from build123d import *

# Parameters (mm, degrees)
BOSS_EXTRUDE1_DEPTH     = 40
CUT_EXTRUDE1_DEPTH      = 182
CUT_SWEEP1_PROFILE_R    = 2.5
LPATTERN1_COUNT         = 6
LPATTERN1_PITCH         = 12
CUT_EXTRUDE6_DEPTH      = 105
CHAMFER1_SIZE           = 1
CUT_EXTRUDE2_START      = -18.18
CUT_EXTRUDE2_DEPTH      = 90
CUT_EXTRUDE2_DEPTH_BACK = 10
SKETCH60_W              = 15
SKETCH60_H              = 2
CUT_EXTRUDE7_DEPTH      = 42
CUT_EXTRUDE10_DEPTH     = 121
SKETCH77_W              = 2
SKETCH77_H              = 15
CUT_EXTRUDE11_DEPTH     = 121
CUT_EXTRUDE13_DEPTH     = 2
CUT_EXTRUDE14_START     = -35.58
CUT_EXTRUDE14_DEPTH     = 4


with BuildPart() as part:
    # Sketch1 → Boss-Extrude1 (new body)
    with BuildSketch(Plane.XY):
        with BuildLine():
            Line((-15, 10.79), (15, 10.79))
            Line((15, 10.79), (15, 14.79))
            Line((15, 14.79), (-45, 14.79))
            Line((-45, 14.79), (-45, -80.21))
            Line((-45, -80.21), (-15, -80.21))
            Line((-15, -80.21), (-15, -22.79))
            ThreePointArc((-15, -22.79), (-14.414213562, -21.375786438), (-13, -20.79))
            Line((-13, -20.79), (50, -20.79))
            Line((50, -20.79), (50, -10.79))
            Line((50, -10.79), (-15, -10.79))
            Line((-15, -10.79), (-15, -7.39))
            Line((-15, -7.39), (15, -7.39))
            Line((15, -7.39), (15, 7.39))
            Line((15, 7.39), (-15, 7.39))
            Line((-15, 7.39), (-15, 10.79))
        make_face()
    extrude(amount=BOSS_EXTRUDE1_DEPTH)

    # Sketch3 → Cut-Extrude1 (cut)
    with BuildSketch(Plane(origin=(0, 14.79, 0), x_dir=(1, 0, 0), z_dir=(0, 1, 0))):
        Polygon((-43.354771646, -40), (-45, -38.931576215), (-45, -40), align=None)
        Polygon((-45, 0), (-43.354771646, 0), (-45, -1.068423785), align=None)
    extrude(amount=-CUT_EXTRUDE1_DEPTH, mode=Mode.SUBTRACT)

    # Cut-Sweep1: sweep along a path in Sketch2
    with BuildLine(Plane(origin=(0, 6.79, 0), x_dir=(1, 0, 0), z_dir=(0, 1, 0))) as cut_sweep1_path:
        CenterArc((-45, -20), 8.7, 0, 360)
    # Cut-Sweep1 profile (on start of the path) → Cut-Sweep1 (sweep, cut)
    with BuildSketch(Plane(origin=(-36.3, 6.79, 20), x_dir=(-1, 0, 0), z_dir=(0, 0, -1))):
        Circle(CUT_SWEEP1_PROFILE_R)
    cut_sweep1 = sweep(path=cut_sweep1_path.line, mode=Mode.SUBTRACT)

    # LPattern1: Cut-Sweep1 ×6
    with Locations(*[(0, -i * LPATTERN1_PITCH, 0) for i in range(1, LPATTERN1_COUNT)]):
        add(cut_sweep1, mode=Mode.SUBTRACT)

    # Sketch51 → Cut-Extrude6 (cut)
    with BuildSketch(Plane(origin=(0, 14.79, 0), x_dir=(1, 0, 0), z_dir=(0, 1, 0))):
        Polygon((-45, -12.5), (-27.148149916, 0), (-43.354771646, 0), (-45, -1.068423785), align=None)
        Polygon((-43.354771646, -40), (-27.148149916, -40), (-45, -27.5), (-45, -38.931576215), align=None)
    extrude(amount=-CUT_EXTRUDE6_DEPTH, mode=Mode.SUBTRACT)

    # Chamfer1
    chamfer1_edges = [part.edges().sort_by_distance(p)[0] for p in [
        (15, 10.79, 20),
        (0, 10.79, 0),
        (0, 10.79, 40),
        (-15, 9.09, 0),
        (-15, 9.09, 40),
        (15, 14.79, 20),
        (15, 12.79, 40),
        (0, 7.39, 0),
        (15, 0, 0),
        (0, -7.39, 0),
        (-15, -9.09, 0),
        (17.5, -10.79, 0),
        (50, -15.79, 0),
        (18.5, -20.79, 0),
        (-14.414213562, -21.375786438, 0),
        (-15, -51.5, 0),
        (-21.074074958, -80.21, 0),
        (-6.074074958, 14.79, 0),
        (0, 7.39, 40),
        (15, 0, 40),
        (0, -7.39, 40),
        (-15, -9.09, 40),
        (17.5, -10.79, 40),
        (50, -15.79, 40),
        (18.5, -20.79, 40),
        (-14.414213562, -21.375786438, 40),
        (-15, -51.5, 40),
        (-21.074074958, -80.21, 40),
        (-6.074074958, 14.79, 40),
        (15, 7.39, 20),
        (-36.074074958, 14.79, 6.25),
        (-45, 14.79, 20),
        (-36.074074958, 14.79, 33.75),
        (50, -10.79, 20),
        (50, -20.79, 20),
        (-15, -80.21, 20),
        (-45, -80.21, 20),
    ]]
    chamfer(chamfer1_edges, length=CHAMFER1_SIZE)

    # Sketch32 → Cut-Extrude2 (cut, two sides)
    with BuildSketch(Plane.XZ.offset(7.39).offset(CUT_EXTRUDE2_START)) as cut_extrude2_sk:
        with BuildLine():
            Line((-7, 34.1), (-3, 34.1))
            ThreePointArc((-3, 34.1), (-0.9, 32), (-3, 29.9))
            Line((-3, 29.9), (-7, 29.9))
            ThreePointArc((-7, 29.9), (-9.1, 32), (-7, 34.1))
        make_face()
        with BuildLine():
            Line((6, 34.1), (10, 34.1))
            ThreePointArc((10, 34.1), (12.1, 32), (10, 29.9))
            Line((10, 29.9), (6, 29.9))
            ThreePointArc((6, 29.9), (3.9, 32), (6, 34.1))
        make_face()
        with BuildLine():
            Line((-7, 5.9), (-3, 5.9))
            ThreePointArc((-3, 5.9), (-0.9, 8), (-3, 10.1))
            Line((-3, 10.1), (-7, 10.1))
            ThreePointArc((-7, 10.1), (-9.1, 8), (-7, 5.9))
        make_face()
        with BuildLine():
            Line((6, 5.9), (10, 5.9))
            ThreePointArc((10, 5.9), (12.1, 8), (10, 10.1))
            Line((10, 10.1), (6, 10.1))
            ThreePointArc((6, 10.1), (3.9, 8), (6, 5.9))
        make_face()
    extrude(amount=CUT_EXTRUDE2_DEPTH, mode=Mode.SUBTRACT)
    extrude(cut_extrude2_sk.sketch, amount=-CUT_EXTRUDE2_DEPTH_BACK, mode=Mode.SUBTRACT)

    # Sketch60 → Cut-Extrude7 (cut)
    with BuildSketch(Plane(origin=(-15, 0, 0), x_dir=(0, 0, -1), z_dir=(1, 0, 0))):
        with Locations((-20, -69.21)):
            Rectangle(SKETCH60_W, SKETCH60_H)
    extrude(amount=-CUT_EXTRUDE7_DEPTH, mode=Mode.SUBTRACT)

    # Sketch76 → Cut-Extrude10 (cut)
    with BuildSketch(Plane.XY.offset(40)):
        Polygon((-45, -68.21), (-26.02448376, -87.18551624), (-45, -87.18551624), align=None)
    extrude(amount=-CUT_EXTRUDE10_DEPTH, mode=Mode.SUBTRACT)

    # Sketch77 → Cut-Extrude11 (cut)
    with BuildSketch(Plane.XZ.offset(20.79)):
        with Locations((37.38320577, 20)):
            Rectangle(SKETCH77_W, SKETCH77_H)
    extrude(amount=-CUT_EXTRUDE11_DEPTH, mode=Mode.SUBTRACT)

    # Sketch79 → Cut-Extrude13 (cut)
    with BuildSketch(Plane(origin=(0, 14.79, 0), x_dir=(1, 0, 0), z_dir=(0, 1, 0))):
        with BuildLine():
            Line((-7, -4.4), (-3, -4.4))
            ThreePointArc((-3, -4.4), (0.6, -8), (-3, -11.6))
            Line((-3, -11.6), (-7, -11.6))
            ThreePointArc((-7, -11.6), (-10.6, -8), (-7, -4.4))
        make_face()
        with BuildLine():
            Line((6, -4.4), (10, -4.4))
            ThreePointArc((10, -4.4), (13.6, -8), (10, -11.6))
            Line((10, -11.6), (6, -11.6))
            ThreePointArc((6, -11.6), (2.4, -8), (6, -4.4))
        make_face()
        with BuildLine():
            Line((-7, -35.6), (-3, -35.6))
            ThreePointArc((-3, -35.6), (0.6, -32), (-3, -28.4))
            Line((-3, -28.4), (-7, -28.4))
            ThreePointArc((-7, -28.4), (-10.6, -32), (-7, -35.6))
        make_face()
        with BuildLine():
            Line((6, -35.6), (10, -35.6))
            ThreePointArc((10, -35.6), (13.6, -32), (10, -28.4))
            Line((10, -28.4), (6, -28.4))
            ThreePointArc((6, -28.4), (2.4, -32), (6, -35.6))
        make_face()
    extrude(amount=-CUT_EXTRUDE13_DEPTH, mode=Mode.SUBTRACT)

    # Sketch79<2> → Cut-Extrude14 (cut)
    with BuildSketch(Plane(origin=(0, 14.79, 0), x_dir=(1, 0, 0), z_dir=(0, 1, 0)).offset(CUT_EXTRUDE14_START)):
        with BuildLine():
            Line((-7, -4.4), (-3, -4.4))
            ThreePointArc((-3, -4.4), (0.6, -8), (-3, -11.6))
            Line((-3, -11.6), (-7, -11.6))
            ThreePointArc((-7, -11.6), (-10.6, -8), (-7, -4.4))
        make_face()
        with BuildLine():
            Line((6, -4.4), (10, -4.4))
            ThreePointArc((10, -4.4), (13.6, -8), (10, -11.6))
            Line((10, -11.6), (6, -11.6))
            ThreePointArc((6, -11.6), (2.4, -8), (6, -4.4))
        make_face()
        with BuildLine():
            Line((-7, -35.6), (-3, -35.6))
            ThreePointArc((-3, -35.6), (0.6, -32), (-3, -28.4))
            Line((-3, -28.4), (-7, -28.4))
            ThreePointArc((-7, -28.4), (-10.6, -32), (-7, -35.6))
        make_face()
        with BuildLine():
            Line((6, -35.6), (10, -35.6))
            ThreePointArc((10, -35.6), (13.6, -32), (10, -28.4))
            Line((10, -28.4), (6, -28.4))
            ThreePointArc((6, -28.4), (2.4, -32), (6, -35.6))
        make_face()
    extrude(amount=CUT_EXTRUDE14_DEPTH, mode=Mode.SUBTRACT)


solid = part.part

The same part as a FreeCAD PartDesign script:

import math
import FreeCAD as App
import Part
import Sketcher

V = App.Vector
Q = App.Units.Quantity


def edges_at(feature, points):
    """Names of the edges that pass closest to the given points."""
    edges = feature.Shape.Edges
    near = lambda p: min(range(len(edges)), key=lambda i: edges[i].distToShape(Part.Vertex(*p))[0])
    return sorted({f"Edge{near(p) + 1}" for p in points})


def add_polygon(sketch, points):
    """Adds a closed chain of lines whose ends are joined by coincident constraints."""
    first, n = sketch.GeometryCount, len(points)
    for a, b in zip(points, points[1:] + points[:1]):
        sketch.addGeometry(Part.LineSegment(App.Vector(*a, 0), App.Vector(*b, 0)), False)
    for i in range(n):
        sketch.addConstraint(Sketcher.Constraint("Coincident", first + i, 2, first + (i + 1) % n, 1))

doc = App.newDocument("Part")
body = doc.addObject("PartDesign::Body", "Body")

# Sketch on XY plane
sketch1 = doc.addObject("Sketcher::SketchObject", "Sketch")
body.addObject(sketch1)
sketch1.AttachmentSupport = (doc.XY_Plane, [""])
sketch1.MapMode = "FlatFace"
sketch1.addGeometry([
    Part.LineSegment(V(-15, 10.8, 0), V(15, 10.8, 0)),  # 0
    Part.LineSegment(V(15, 10.8, 0), V(15, 14.8, 0)),  # 1
    Part.LineSegment(V(15, 14.8, 0), V(-45, 14.8, 0)),  # 2
    Part.LineSegment(V(-45, 14.8, 0), V(-45, -80.2, 0)),  # 3
    Part.LineSegment(V(-45, -80.2, 0), V(-15, -80.2, 0)),  # 4
    Part.LineSegment(V(-15, -80.2, 0), V(-15, -22.8, 0)),  # 5
    Part.ArcOfCircle(Part.Circle(V(-13, -22.8, 0), V(0, 0, 1), 2), math.radians(90), math.radians(180)),  # 6
    Part.LineSegment(V(-13, -20.8, 0), V(50, -20.8, 0)),  # 7
    Part.LineSegment(V(50, -20.8, 0), V(50, -10.8, 0)),  # 8
    Part.LineSegment(V(50, -10.8, 0), V(-15, -10.8, 0)),  # 9
    Part.LineSegment(V(-15, -10.8, 0), V(-15, -7.4, 0)),  # 10
    Part.LineSegment(V(-15, -7.4, 0), V(15, -7.4, 0)),  # 11
    Part.LineSegment(V(15, -7.4, 0), V(15, 7.4, 0)),  # 12
    Part.LineSegment(V(15, 7.4, 0), V(-15, 7.4, 0)),  # 13
    Part.LineSegment(V(-15, 7.4, 0), V(-15, 10.8, 0)),  # 14
], False)
sketch1.addConstraint([
    Sketcher.Constraint("Coincident", 0, 2, 1, 1),
    Sketcher.Constraint("Coincident", 1, 2, 2, 1),
    Sketcher.Constraint("Coincident", 2, 2, 3, 1),
    Sketcher.Constraint("Coincident", 3, 2, 4, 1),
    Sketcher.Constraint("Coincident", 4, 2, 5, 1),
    Sketcher.Constraint("Tangent", 5, 2, 6, 2),
    Sketcher.Constraint("Tangent", 6, 1, 7, 1),
    Sketcher.Constraint("Coincident", 7, 2, 8, 1),
    Sketcher.Constraint("Coincident", 8, 2, 9, 1),
    Sketcher.Constraint("Coincident", 9, 2, 10, 1),
    Sketcher.Constraint("Coincident", 10, 2, 11, 1),
    Sketcher.Constraint("Coincident", 11, 2, 12, 1),
    Sketcher.Constraint("Coincident", 12, 2, 13, 1),
    Sketcher.Constraint("Coincident", 13, 2, 14, 1),
    Sketcher.Constraint("Coincident", 14, 2, 0, 1),
    Sketcher.Constraint("Horizontal", 0),
    Sketcher.Constraint("Vertical", 1),
    Sketcher.Constraint("Horizontal", 2),
    Sketcher.Constraint("Vertical", 3),
    Sketcher.Constraint("Horizontal", 4),
    Sketcher.Constraint("Vertical", 5),
    Sketcher.Constraint("Horizontal", 7),
    Sketcher.Constraint("Vertical", 8),
    Sketcher.Constraint("Horizontal", 9),
    Sketcher.Constraint("Vertical", 10),
    Sketcher.Constraint("Horizontal", 11),
    Sketcher.Constraint("Vertical", 12),
    Sketcher.Constraint("Horizontal", 13),
    Sketcher.Constraint("Vertical", 14),
    Sketcher.Constraint("Symmetric", 0, 2, 9, 2, -1, 1),
    Sketcher.Constraint("Symmetric", 10, 2, 12, 2, -1, 1),
    Sketcher.Constraint("Vertical", 5, 2, 9, 2),
    Sketcher.Constraint("Vertical", 10, 2, 13, 2),
    Sketcher.Constraint("Equal", 0, 4),
    Sketcher.Constraint("Radius", 6, 2.0),
    Sketcher.Constraint("DistanceX", 0, 1, 0, 2, 30.0),
    Sketcher.Constraint("DistanceX", 7, 1, 7, 2, 63.0),
    Sketcher.Constraint("DistanceY", 1, 1, 1, 2, 4.0),
    Sketcher.Constraint("DistanceY", 3, 2, 3, 1, 95.0),
    Sketcher.Constraint("DistanceY", 8, 1, 8, 2, 10.0),
    Sketcher.Constraint("DistanceY", 10, 1, 10, 2, 3.4),
    Sketcher.Constraint("DistanceY", 5, 1, 5, 2, 57.42),
])
pad1 = doc.addObject("PartDesign::Pad", "Pad")
body.addObject(pad1)
pad1.Profile = sketch1
pad1.Length = 40

# Sketch on XZ plane
sketch2 = doc.addObject("Sketcher::SketchObject", "Sketch001")
body.addObject(sketch2)
sketch2.AttachmentSupport = (doc.XZ_Plane, [""])
sketch2.MapMode = "FlatFace"
sketch2.AttachmentOffset = App.Placement(V(0, 0, -14.79), App.Rotation())
add_polygon(sketch2, [(-43.4, 40), (-45, 38.9), (-45, 40)])  # lines 0-2
add_polygon(sketch2, [(-43.4, 0), (-45, 0), (-45, 1.1)])  # lines 3-5
sketch2.addConstraint([
    Sketcher.Constraint("Vertical", 1),
    Sketcher.Constraint("Horizontal", 2),
    Sketcher.Constraint("Horizontal", 3),
    Sketcher.Constraint("Vertical", 4),
    Sketcher.Constraint("PointOnObject", 3, 2, -1),
    Sketcher.Constraint("Vertical", 1, 2, 3, 2),
    Sketcher.Constraint("Vertical", 2, 2, 5, 2),
    Sketcher.Constraint("Equal", 1, 4),
    Sketcher.Constraint("Angle", 0, Q("-147 deg")),
    Sketcher.Constraint("DistanceX", 0, 2, -1, 1, 45.0),
    Sketcher.Constraint("DistanceY", -1, 1, 1, 2, 40.0),
    Sketcher.Constraint("DistanceX", 2, 1, 2, 2, 1.645228),
])
pocket1 = doc.addObject("PartDesign::Pocket", "Pocket")
body.addObject(pocket1)
pocket1.Profile = sketch2
pocket1.Length = 182
pocket1.Reversed = True

# Sketch on XY plane
sketch3 = doc.addObject("Sketcher::SketchObject", "Sketch002")
body.addObject(sketch3)
sketch3.AttachmentSupport = (doc.XY_Plane, [""])
sketch3.MapMode = "FlatFace"
sketch3.AttachmentOffset = App.Placement(V(0, 0, 20), App.Rotation())
sketch3.addGeometry(Part.Circle(V(-36.3, 6.8, 0), V(0, 0, 1), 2.5), False)
sketch3.addConstraint([
    Sketcher.Constraint("Diameter", 0, 5.0),
    Sketcher.Constraint("DistanceX", 0, 3, -1, 1, 36.3),
    Sketcher.Constraint("DistanceY", -1, 1, 0, 3, 6.79),
])

# Sketch on XZ plane
sketch4 = doc.addObject("Sketcher::SketchObject", "Sketch003")
body.addObject(sketch4)
sketch4.AttachmentSupport = (doc.XZ_Plane, [""])
sketch4.MapMode = "FlatFace"
sketch4.AttachmentOffset = App.Placement(V(0, 0, -6.79), App.Rotation())
sketch4.addGeometry(Part.Circle(V(-45, 20, 0), V(0, 0, 1), 9), False)
sketch4.addConstraint([
    Sketcher.Constraint("Diameter", 0, 17.4),
    Sketcher.Constraint("DistanceX", 0, 3, -1, 1, 45.0),
    Sketcher.Constraint("DistanceY", -1, 1, 0, 3, 20.0),
])
doc.recompute()

subtractivepipe = doc.addObject("PartDesign::SubtractivePipe", "SubtractivePipe")
body.addObject(subtractivepipe)
subtractivepipe.Profile = sketch3
subtractivepipe.Spine = (sketch4, ["Edge1"])
doc.recompute()

linearpattern = doc.addObject("PartDesign::LinearPattern", "LinearPattern")
body.addObject(linearpattern)
linearpattern.Originals = [subtractivepipe]
linearpattern.Direction = (doc.Y_Axis, [""])
linearpattern.Mode = "offset"
linearpattern.Offset = 12
linearpattern.Occurrences = 6
linearpattern.Reversed = True
body.Tip = linearpattern

# Sketch on XZ plane
sketch5 = doc.addObject("Sketcher::SketchObject", "Sketch004")
body.addObject(sketch5)
sketch5.AttachmentSupport = (doc.XZ_Plane, [""])
sketch5.MapMode = "FlatFace"
sketch5.AttachmentOffset = App.Placement(V(0, 0, -14.79), App.Rotation())
add_polygon(sketch5, [(-45, 12.5), (-27.1, 0), (-43.4, 0), (-45, 1.1)])  # lines 0-3
add_polygon(sketch5, [(-43.4, 40), (-27.1, 40), (-45, 27.5), (-45, 38.9)])  # lines 4-7
sketch5.addConstraint([
    Sketcher.Constraint("Horizontal", 1),
    Sketcher.Constraint("Vertical", 3),
    Sketcher.Constraint("Horizontal", 4),
    Sketcher.Constraint("Vertical", 6),
    Sketcher.Constraint("PointOnObject", 0, 2, -1),
    Sketcher.Constraint("Vertical", 0, 2, 4, 2),
    Sketcher.Constraint("Vertical", 3, 2, 5, 2),
    Sketcher.Constraint("Vertical", 1, 2, 7, 2),
    Sketcher.Constraint("Equal", 3, 6),
    Sketcher.Constraint("Equal", 0, 5),
    Sketcher.Constraint("Angle", 0, Q("-35 deg")),
    Sketcher.Constraint("Angle", 2, Q("147 deg")),
    Sketcher.Constraint("DistanceX", 2, 2, -1, 1, 45.0),
    Sketcher.Constraint("DistanceY", -1, 1, 4, 2, 40.0),
    Sketcher.Constraint("DistanceY", 3, 2, 5, 2, 15.0),
    Sketcher.Constraint("DistanceX", 1, 2, 1, 1, 16.206622),
])
pocket2 = doc.addObject("PartDesign::Pocket", "Pocket001")
body.addObject(pocket2)
pocket2.Profile = sketch5
pocket2.Length = 105
pocket2.Reversed = True
doc.recompute()

chamfer = doc.addObject("PartDesign::Chamfer", "Chamfer")
body.addObject(chamfer)
chamfer.Base = (pocket2, edges_at(pocket2, [
    (15, 10.79, 20),
    (0, 10.79, 0),
    (0, 10.79, 40),
    (-15, 9.09, 0),
    (-15, 9.09, 40),
    (15, 14.79, 20),
    (15, 12.79, 40),
    (0, 7.39, 0),
    (15, 0, 0),
    (0, -7.39, 0),
    (-15, -9.09, 0),
    (17.5, -10.79, 0),
    (50, -15.79, 0),
    (18.5, -20.79, 0),
    (-14.414, -21.376, 0),
    (-15, -51.5, 0),
    (-21.074, -80.21, 0),
    (-6.074, 14.79, 0),
    (0, 7.39, 40),
    (15, 0, 40),
    (0, -7.39, 40),
    (-15, -9.09, 40),
    (17.5, -10.79, 40),
    (50, -15.79, 40),
    (18.5, -20.79, 40),
    (-14.414, -21.376, 40),
    (-15, -51.5, 40),
    (-21.074, -80.21, 40),
    (-6.074, 14.79, 40),
    (15, 7.39, 20),
    (-36.074, 14.79, 6.25),
    (-45, 14.79, 20),
    (-36.074, 14.79, 33.75),
    (50, -10.79, 20),
    (50, -20.79, 20),
    (-15, -80.21, 20),
    (-45, -80.21, 20),
]))
chamfer.Size = 1

# Sketch on XZ plane
sketch6 = doc.addObject("Sketcher::SketchObject", "Sketch005")
body.addObject(sketch6)
sketch6.AttachmentSupport = (doc.XZ_Plane, [""])
sketch6.MapMode = "FlatFace"
sketch6.AttachmentOffset = App.Placement(V(0, 0, -10.79), App.Rotation())
sketch6.addGeometry([
    Part.LineSegment(V(-3, 34.1, 0), V(-7, 34.1, 0)),  # 0
    Part.ArcOfCircle(Part.Circle(V(-7, 32, 0), V(0, 0, 1), 2.1), math.radians(90), math.radians(270)),  # 1
    Part.LineSegment(V(-7, 29.9, 0), V(-3, 29.9, 0)),  # 2
    Part.ArcOfCircle(Part.Circle(V(-3, 32, 0), V(0, 0, 1), 2.1), math.radians(-90), math.radians(90)),  # 3
    Part.LineSegment(V(10, 34.1, 0), V(6, 34.1, 0)),  # 4
    Part.ArcOfCircle(Part.Circle(V(6, 32, 0), V(0, 0, 1), 2.1), math.radians(90), math.radians(270)),  # 5
    Part.LineSegment(V(6, 29.9, 0), V(10, 29.9, 0)),  # 6
    Part.ArcOfCircle(Part.Circle(V(10, 32, 0), V(0, 0, 1), 2.1), math.radians(-90), math.radians(90)),  # 7
    Part.LineSegment(V(-7, 5.9, 0), V(-3, 5.9, 0)),  # 8
    Part.ArcOfCircle(Part.Circle(V(-3, 8, 0), V(0, 0, 1), 2.1), math.radians(-90), math.radians(90)),  # 9
    Part.LineSegment(V(-3, 10.1, 0), V(-7, 10.1, 0)),  # 10
    Part.ArcOfCircle(Part.Circle(V(-7, 8, 0), V(0, 0, 1), 2.1), math.radians(90), math.radians(270)),  # 11
    Part.LineSegment(V(6, 5.9, 0), V(10, 5.9, 0)),  # 12
    Part.ArcOfCircle(Part.Circle(V(10, 8, 0), V(0, 0, 1), 2.1), math.radians(-90), math.radians(90)),  # 13
    Part.LineSegment(V(10, 10.1, 0), V(6, 10.1, 0)),  # 14
    Part.ArcOfCircle(Part.Circle(V(6, 8, 0), V(0, 0, 1), 2.1), math.radians(90), math.radians(270)),  # 15
], False)
sketch6.addConstraint([
    Sketcher.Constraint("Tangent", 0, 2, 1, 1),
    Sketcher.Constraint("Tangent", 1, 2, 2, 1),
    Sketcher.Constraint("Tangent", 2, 2, 3, 1),
    Sketcher.Constraint("Tangent", 3, 2, 0, 1),
    Sketcher.Constraint("Tangent", 4, 2, 5, 1),
    Sketcher.Constraint("Tangent", 5, 2, 6, 1),
    Sketcher.Constraint("Tangent", 6, 2, 7, 1),
    Sketcher.Constraint("Tangent", 7, 2, 4, 1),
    Sketcher.Constraint("Tangent", 8, 2, 9, 1),
    Sketcher.Constraint("Tangent", 9, 2, 10, 1),
    Sketcher.Constraint("Tangent", 10, 2, 11, 1),
    Sketcher.Constraint("Tangent", 11, 2, 8, 1),
    Sketcher.Constraint("Tangent", 12, 2, 13, 1),
    Sketcher.Constraint("Tangent", 13, 2, 14, 1),
    Sketcher.Constraint("Tangent", 14, 2, 15, 1),
    Sketcher.Constraint("Tangent", 15, 2, 12, 1),
    Sketcher.Constraint("Horizontal", 0),
    Sketcher.Constraint("Horizontal", 2),
    Sketcher.Constraint("Horizontal", 4),
    Sketcher.Constraint("Horizontal", 6),
    Sketcher.Constraint("Horizontal", 8),
    Sketcher.Constraint("Horizontal", 10),
    Sketcher.Constraint("Horizontal", 12),
    Sketcher.Constraint("Horizontal", 14),
    Sketcher.Constraint("Equal", 3, 5),
    Sketcher.Constraint("Equal", 7, 9),
    Sketcher.Constraint("Equal", 11, 13),
    Sketcher.Constraint("Horizontal", 3, 3, 5, 3),
    Sketcher.Constraint("Horizontal", 11, 3, 13, 3),
    Sketcher.Constraint("Vertical", 3, 3, 9, 3),
    Sketcher.Constraint("Vertical", 1, 3, 11, 3),
    Sketcher.Constraint("Vertical", 7, 3, 13, 3),
    Sketcher.Constraint("Vertical", 5, 3, 15, 3),
    Sketcher.Constraint("Equal", 2, 4),
    Sketcher.Constraint("Radius", 1, 2.1),
    Sketcher.Constraint("DistanceX", 0, 2, 0, 1, 4.0),
    Sketcher.Constraint("DistanceX", 1, 3, -1, 1, 7.0),
    Sketcher.Constraint("DistanceY", -1, 1, 1, 3, 32.0),
    Sketcher.Constraint("DistanceX", -1, 1, 5, 3, 6.0),
    Sketcher.Constraint("DistanceY", -1, 1, 9, 3, 8.0),
])
pocket3 = doc.addObject("PartDesign::Pocket", "Pocket002")
body.addObject(pocket3)
pocket3.Profile = sketch6
pocket3.Type = "ThroughAll"
pocket3.Midplane = True

# Sketch on YZ plane
sketch7 = doc.addObject("Sketcher::SketchObject", "Sketch006")
body.addObject(sketch7)
sketch7.AttachmentSupport = (doc.YZ_Plane, [""])
sketch7.MapMode = "FlatFace"
sketch7.AttachmentOffset = App.Placement(V(0, 0, -15), App.Rotation())
add_polygon(sketch7, [(-68.2, 27.5), (-70.2, 27.5), (-70.2, 12.5), (-68.2, 12.5)])  # lines 0-3
sketch7.addConstraint([
    Sketcher.Constraint("Horizontal", 0),
    Sketcher.Constraint("Vertical", 1),
    Sketcher.Constraint("Horizontal", 2),
    Sketcher.Constraint("Vertical", 3),
    Sketcher.Constraint("DistanceX", 0, 2, 0, 1, 2.0),
    Sketcher.Constraint("DistanceY", 1, 2, 1, 1, 15.0),
    Sketcher.Constraint("DistanceY", -1, 1, 0, 2, 27.5),
    Sketcher.Constraint("DistanceX", 0, 2, -1, 1, 70.21),
])
pocket4 = doc.addObject("PartDesign::Pocket", "Pocket003")
body.addObject(pocket4)
pocket4.Profile = sketch7
pocket4.Length = 42

# Sketch on XY plane
sketch8 = doc.addObject("Sketcher::SketchObject", "Sketch007")
body.addObject(sketch8)
sketch8.AttachmentSupport = (doc.XY_Plane, [""])
sketch8.MapMode = "FlatFace"
sketch8.AttachmentOffset = App.Placement(V(0, 0, 40), App.Rotation())
add_polygon(sketch8, [(-26, -87), (-45, -68), (-45, -87)])  # lines 0-2
sketch8.addConstraint([
    Sketcher.Constraint("Vertical", 1),
    Sketcher.Constraint("Horizontal", 2),
    Sketcher.Constraint("Equal", 2, 1),
    Sketcher.Constraint("DistanceX", 0, 2, -1, 1, 45.0),
    Sketcher.Constraint("DistanceY", 0, 2, -1, 1, 68.21),
    Sketcher.Constraint("DistanceX", 2, 1, 2, 2, 18.975516),
])
pocket5 = doc.addObject("PartDesign::Pocket", "Pocket004")
body.addObject(pocket5)
pocket5.Profile = sketch8
pocket5.Length = 121

# Sketch on XZ plane
sketch9 = doc.addObject("Sketcher::SketchObject", "Sketch008")
body.addObject(sketch9)
sketch9.AttachmentSupport = (doc.XZ_Plane, [""])
sketch9.MapMode = "FlatFace"
sketch9.AttachmentOffset = App.Placement(V(0, 0, 20.79), App.Rotation())
add_polygon(sketch9, [(36.4, 27.5), (36.4, 12.5), (38.4, 12.5), (38.4, 27.5)])  # lines 0-3
sketch9.addConstraint([
    Sketcher.Constraint("Vertical", 0),
    Sketcher.Constraint("Horizontal", 1),
    Sketcher.Constraint("Vertical", 2),
    Sketcher.Constraint("Horizontal", 3),
    Sketcher.Constraint("DistanceX", 1, 1, 1, 2, 2.0),
    Sketcher.Constraint("DistanceY", 0, 2, 0, 1, 15.0),
    Sketcher.Constraint("DistanceY", -1, 1, 0, 2, 12.5),
    Sketcher.Constraint("DistanceX", -1, 1, 0, 2, 36.383206),
])
pocket6 = doc.addObject("PartDesign::Pocket", "Pocket005")
body.addObject(pocket6)
pocket6.Profile = sketch9
pocket6.Length = 121

# Sketch on XZ plane
sketch10 = doc.addObject("Sketcher::SketchObject", "Sketch009")
body.addObject(sketch10)
sketch10.AttachmentSupport = (doc.XZ_Plane, [""])
sketch10.MapMode = "FlatFace"
sketch10.AttachmentOffset = App.Placement(V(0, 0, -14.79), App.Rotation())
sketch10.addGeometry([
    Part.LineSegment(V(-3, 4.4, 0), V(-7, 4.4, 0)),  # 0
    Part.ArcOfCircle(Part.Circle(V(-7, 8, 0), V(0, 0, 1), 3.6), math.radians(90), math.radians(270)),  # 1
    Part.LineSegment(V(-7, 11.6, 0), V(-3, 11.6, 0)),  # 2
    Part.ArcOfCircle(Part.Circle(V(-3, 8, 0), V(0, 0, 1), 3.6), math.radians(-90), math.radians(90)),  # 3
    Part.LineSegment(V(10, 4.4, 0), V(6, 4.4, 0)),  # 4
    Part.ArcOfCircle(Part.Circle(V(6, 8, 0), V(0, 0, 1), 3.6), math.radians(90), math.radians(270)),  # 5
    Part.LineSegment(V(6, 11.6, 0), V(10, 11.6, 0)),  # 6
    Part.ArcOfCircle(Part.Circle(V(10, 8, 0), V(0, 0, 1), 3.6), math.radians(-90), math.radians(90)),  # 7
    Part.LineSegment(V(-7, 35.6, 0), V(-3, 35.6, 0)),  # 8
    Part.ArcOfCircle(Part.Circle(V(-3, 32, 0), V(0, 0, 1), 3.6), math.radians(-90), math.radians(90)),  # 9
    Part.LineSegment(V(-3, 28.4, 0), V(-7, 28.4, 0)),  # 10
    Part.ArcOfCircle(Part.Circle(V(-7, 32, 0), V(0, 0, 1), 3.6), math.radians(90), math.radians(270)),  # 11
    Part.LineSegment(V(6, 35.6, 0), V(10, 35.6, 0)),  # 12
    Part.ArcOfCircle(Part.Circle(V(10, 32, 0), V(0, 0, 1), 3.6), math.radians(-90), math.radians(90)),  # 13
    Part.LineSegment(V(10, 28.4, 0), V(6, 28.4, 0)),  # 14
    Part.ArcOfCircle(Part.Circle(V(6, 32, 0), V(0, 0, 1), 3.6), math.radians(90), math.radians(270)),  # 15
], False)
sketch10.addConstraint([
    Sketcher.Constraint("Tangent", 0, 2, 1, 2),
    Sketcher.Constraint("Tangent", 1, 1, 2, 1),
    Sketcher.Constraint("Tangent", 2, 2, 3, 2),
    Sketcher.Constraint("Tangent", 3, 1, 0, 1),
    Sketcher.Constraint("Tangent", 4, 2, 5, 2),
    Sketcher.Constraint("Tangent", 5, 1, 6, 1),
    Sketcher.Constraint("Tangent", 6, 2, 7, 2),
    Sketcher.Constraint("Tangent", 7, 1, 4, 1),
    Sketcher.Constraint("Tangent", 8, 2, 9, 2),
    Sketcher.Constraint("Tangent", 9, 1, 10, 1),
    Sketcher.Constraint("Tangent", 10, 2, 11, 2),
    Sketcher.Constraint("Tangent", 11, 1, 8, 1),
    Sketcher.Constraint("Tangent", 12, 2, 13, 2),
    Sketcher.Constraint("Tangent", 13, 1, 14, 1),
    Sketcher.Constraint("Tangent", 14, 2, 15, 2),
    Sketcher.Constraint("Tangent", 15, 1, 12, 1),
    Sketcher.Constraint("Horizontal", 0),
    Sketcher.Constraint("Horizontal", 2),
    Sketcher.Constraint("Horizontal", 4),
    Sketcher.Constraint("Horizontal", 6),
    Sketcher.Constraint("Horizontal", 8),
    Sketcher.Constraint("Horizontal", 10),
    Sketcher.Constraint("Horizontal", 12),
    Sketcher.Constraint("Horizontal", 14),
    Sketcher.Constraint("Equal", 3, 5),
    Sketcher.Constraint("Equal", 7, 9),
    Sketcher.Constraint("Equal", 11, 13),
    Sketcher.Constraint("Horizontal", 3, 3, 5, 3),
    Sketcher.Constraint("Horizontal", 11, 3, 13, 3),
    Sketcher.Constraint("Vertical", 3, 3, 9, 3),
    Sketcher.Constraint("Vertical", 1, 3, 11, 3),
    Sketcher.Constraint("Vertical", 7, 3, 13, 3),
    Sketcher.Constraint("Vertical", 5, 3, 15, 3),
    Sketcher.Constraint("Equal", 2, 4),
    Sketcher.Constraint("Radius", 1, 3.6),
    Sketcher.Constraint("DistanceX", 0, 2, 0, 1, 4.0),
    Sketcher.Constraint("DistanceX", 1, 3, -1, 1, 7.0),
    Sketcher.Constraint("DistanceY", -1, 1, 1, 3, 8.0),
    Sketcher.Constraint("DistanceX", -1, 1, 5, 3, 6.0),
    Sketcher.Constraint("DistanceY", -1, 1, 9, 3, 32.0),
])
pocket7 = doc.addObject("PartDesign::Pocket", "Pocket006")
body.addObject(pocket7)
pocket7.Profile = sketch10
pocket7.Length = 2
pocket7.Reversed = True

# Sketch on XZ plane
sketch11 = doc.addObject("Sketcher::SketchObject", "Sketch010")
body.addObject(sketch11)
sketch11.AttachmentSupport = (doc.XZ_Plane, [""])
sketch11.MapMode = "FlatFace"
sketch11.AttachmentOffset = App.Placement(V(0, 0, 20.79), App.Rotation())
sketch11.addGeometry([
    Part.LineSegment(V(-3, 4.4, 0), V(-7, 4.4, 0)),  # 0
    Part.ArcOfCircle(Part.Circle(V(-7, 8, 0), V(0, 0, 1), 3.6), math.radians(90), math.radians(270)),  # 1
    Part.LineSegment(V(-7, 11.6, 0), V(-3, 11.6, 0)),  # 2
    Part.ArcOfCircle(Part.Circle(V(-3, 8, 0), V(0, 0, 1), 3.6), math.radians(-90), math.radians(90)),  # 3
    Part.LineSegment(V(10, 4.4, 0), V(6, 4.4, 0)),  # 4
    Part.ArcOfCircle(Part.Circle(V(6, 8, 0), V(0, 0, 1), 3.6), math.radians(90), math.radians(270)),  # 5
    Part.LineSegment(V(6, 11.6, 0), V(10, 11.6, 0)),  # 6
    Part.ArcOfCircle(Part.Circle(V(10, 8, 0), V(0, 0, 1), 3.6), math.radians(-90), math.radians(90)),  # 7
    Part.LineSegment(V(-7, 35.6, 0), V(-3, 35.6, 0)),  # 8
    Part.ArcOfCircle(Part.Circle(V(-3, 32, 0), V(0, 0, 1), 3.6), math.radians(-90), math.radians(90)),  # 9
    Part.LineSegment(V(-3, 28.4, 0), V(-7, 28.4, 0)),  # 10
    Part.ArcOfCircle(Part.Circle(V(-7, 32, 0), V(0, 0, 1), 3.6), math.radians(90), math.radians(270)),  # 11
    Part.LineSegment(V(6, 35.6, 0), V(10, 35.6, 0)),  # 12
    Part.ArcOfCircle(Part.Circle(V(10, 32, 0), V(0, 0, 1), 3.6), math.radians(-90), math.radians(90)),  # 13
    Part.LineSegment(V(10, 28.4, 0), V(6, 28.4, 0)),  # 14
    Part.ArcOfCircle(Part.Circle(V(6, 32, 0), V(0, 0, 1), 3.6), math.radians(90), math.radians(270)),  # 15
], False)
sketch11.addConstraint([
    Sketcher.Constraint("Tangent", 0, 2, 1, 2),
    Sketcher.Constraint("Tangent", 1, 1, 2, 1),
    Sketcher.Constraint("Tangent", 2, 2, 3, 2),
    Sketcher.Constraint("Tangent", 3, 1, 0, 1),
    Sketcher.Constraint("Tangent", 4, 2, 5, 2),
    Sketcher.Constraint("Tangent", 5, 1, 6, 1),
    Sketcher.Constraint("Tangent", 6, 2, 7, 2),
    Sketcher.Constraint("Tangent", 7, 1, 4, 1),
    Sketcher.Constraint("Tangent", 8, 2, 9, 2),
    Sketcher.Constraint("Tangent", 9, 1, 10, 1),
    Sketcher.Constraint("Tangent", 10, 2, 11, 2),
    Sketcher.Constraint("Tangent", 11, 1, 8, 1),
    Sketcher.Constraint("Tangent", 12, 2, 13, 2),
    Sketcher.Constraint("Tangent", 13, 1, 14, 1),
    Sketcher.Constraint("Tangent", 14, 2, 15, 2),
    Sketcher.Constraint("Tangent", 15, 1, 12, 1),
    Sketcher.Constraint("Horizontal", 0),
    Sketcher.Constraint("Horizontal", 2),
    Sketcher.Constraint("Horizontal", 4),
    Sketcher.Constraint("Horizontal", 6),
    Sketcher.Constraint("Horizontal", 8),
    Sketcher.Constraint("Horizontal", 10),
    Sketcher.Constraint("Horizontal", 12),
    Sketcher.Constraint("Horizontal", 14),
    Sketcher.Constraint("Equal", 3, 5),
    Sketcher.Constraint("Equal", 7, 9),
    Sketcher.Constraint("Equal", 11, 13),
    Sketcher.Constraint("Horizontal", 3, 3, 5, 3),
    Sketcher.Constraint("Horizontal", 11, 3, 13, 3),
    Sketcher.Constraint("Vertical", 3, 3, 9, 3),
    Sketcher.Constraint("Vertical", 1, 3, 11, 3),
    Sketcher.Constraint("Vertical", 7, 3, 13, 3),
    Sketcher.Constraint("Vertical", 5, 3, 15, 3),
    Sketcher.Constraint("Equal", 2, 4),
    Sketcher.Constraint("Radius", 1, 3.6),
    Sketcher.Constraint("DistanceX", 0, 2, 0, 1, 4.0),
    Sketcher.Constraint("DistanceX", 1, 3, -1, 1, 7.0),
    Sketcher.Constraint("DistanceY", -1, 1, 1, 3, 8.0),
    Sketcher.Constraint("DistanceX", -1, 1, 5, 3, 6.0),
    Sketcher.Constraint("DistanceY", -1, 1, 9, 3, 32.0),
])
pocket8 = doc.addObject("PartDesign::Pocket", "Pocket007")
body.addObject(pocket8)
pocket8.Profile = sketch11
pocket8.Length = 4

doc.recompute()
